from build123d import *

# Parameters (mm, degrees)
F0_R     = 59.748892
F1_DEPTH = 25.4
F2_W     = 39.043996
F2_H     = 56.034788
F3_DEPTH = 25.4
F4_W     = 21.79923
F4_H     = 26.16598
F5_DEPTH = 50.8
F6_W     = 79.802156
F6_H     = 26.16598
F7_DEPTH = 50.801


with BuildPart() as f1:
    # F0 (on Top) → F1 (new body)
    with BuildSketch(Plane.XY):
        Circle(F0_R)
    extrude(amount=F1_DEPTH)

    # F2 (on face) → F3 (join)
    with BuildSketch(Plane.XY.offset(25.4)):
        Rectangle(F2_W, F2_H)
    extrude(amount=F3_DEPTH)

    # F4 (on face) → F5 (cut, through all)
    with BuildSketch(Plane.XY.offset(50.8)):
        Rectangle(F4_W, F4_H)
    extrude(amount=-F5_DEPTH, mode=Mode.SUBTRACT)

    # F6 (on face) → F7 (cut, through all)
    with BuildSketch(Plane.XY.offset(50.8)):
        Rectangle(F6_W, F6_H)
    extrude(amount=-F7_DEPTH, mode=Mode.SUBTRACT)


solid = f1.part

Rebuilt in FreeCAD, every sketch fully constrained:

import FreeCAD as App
import Part
import Sketcher

V = App.Vector
Q = App.Units.Quantity

doc = App.newDocument("Part")
body = doc.addObject("PartDesign::Body", "Body")

# Sketch on XY plane
sketch1 = body.newObject("Sketcher::SketchObject", "Sketch")
sketch1.AttachmentSupport = (doc.getObject("XY_Plane"), [""])
sketch1.MapMode = "FlatFace"
sketch1.addGeometry(Part.Circle(V(0, 0, 0), V(0, 0, 1), 60), False)
sketch1.addConstraint([
    Sketcher.Constraint("Coincident", 0, 3, -1, 1),
    Sketcher.Constraint("Diameter", 0, Q("119.497784 mm")),
])
pad1 = body.newObject("PartDesign::Pad", "Pad")
pad1.Profile = sketch1
pad1.Length = Q("1 in")

# Sketch on XY plane
sketch2 = body.newObject("Sketcher::SketchObject", "Sketch001")
sketch2.AttachmentSupport = (doc.getObject("XY_Plane"), [""])
sketch2.MapMode = "FlatFace"
sketch2.AttachmentOffset = App.Placement(V(0, 0, 1 * 25.4), App.Rotation())
sketch2.addGeometry([
    Part.LineSegment(V(-20, 28, 0), V(-20, -28, 0)),
    Part.LineSegment(V(-20, -28, 0), V(20, -28, 0)),
    Part.LineSegment(V(20, -28, 0), V(20, 28, 0)),
    Part.LineSegment(V(20, 28, 0), V(-20, 28, 0)),
], False)
sketch2.addConstraint([
    Sketcher.Constraint("Coincident", 0, 2, 1, 1),
    Sketcher.Constraint("Coincident", 1, 2, 2, 1),
    Sketcher.Constraint("Coincident", 2, 2, 3, 1),
    Sketcher.Constraint("Coincident", 3, 2, 0, 1),
    Sketcher.Constraint("Vertical", 0),
    Sketcher.Constraint("Horizontal", 1),
    Sketcher.Constraint("Vertical", 2),
    Sketcher.Constraint("Horizontal", 3),
    Sketcher.Constraint("Symmetric", 0, 2, 2, 2, -1, 1),
    Sketcher.Constraint("DistanceX", 0, 2, -1, 1, Q("19.521998 mm")),
    Sketcher.Constraint("DistanceY", 0, 2, 0, 1, Q("56.034788 mm")),
])
pad2 = body.newObject("PartDesign::Pad", "Pad001")
pad2.Profile = sketch2
pad2.Length = Q("1 in")

# Sketch on XY plane
sketch3 = body.newObject("Sketcher::SketchObject", "Sketch002")
sketch3.AttachmentSupport = (doc.getObject("XY_Plane"), [""])
sketch3.MapMode = "FlatFace"
sketch3.AttachmentOffset = App.Placement(V(0, 0, 2 * 25.4), App.Rotation())
sketch3.addGeometry([
    Part.LineSegment(V(-11, 13, 0), V(-11, -13, 0)),
    Part.LineSegment(V(-11, -13, 0), V(11, -13, 0)),
    Part.LineSegment(V(11, -13, 0), V(11, 13, 0)),
    Part.LineSegment(V(11, 13, 0), V(-11, 13, 0)),
], False)
sketch3.addConstraint([
    Sketcher.Constraint("Coincident", 0, 2, 1, 1),
    Sketcher.Constraint("Coincident", 1, 2, 2, 1),
    Sketcher.Constraint("Coincident", 2, 2, 3, 1),
    Sketcher.Constraint("Coincident", 3, 2, 0, 1),
    Sketcher.Constraint("Vertical", 0),
    Sketcher.Constraint("Horizontal", 1),
    Sketcher.Constraint("Vertical", 2),
    Sketcher.Constraint("Horizontal", 3),
    Sketcher.Constraint("Symmetric", 0, 2, 2, 2, -1, 1),
    Sketcher.Constraint("DistanceX", 1, 1, 1, 2, Q("21.79923 mm")),
    Sketcher.Constraint("DistanceY", 0, 2, 0, 1, Q("26.16598 mm")),
])
pocket1 = body.newObject("PartDesign::Pocket", "Pocket")
pocket1.Profile = sketch3
pocket1.Type = "ThroughAll"

# Sketch on XY plane
sketch4 = body.newObject("Sketcher::SketchObject", "Sketch003")
sketch4.AttachmentSupport = (doc.getObject("XY_Plane"), [""])
sketch4.MapMode = "FlatFace"
sketch4.AttachmentOffset = App.Placement(V(0, 0, 2 * 25.4), App.Rotation())
sketch4.addGeometry([
    Part.LineSegment(V(-40, 13, 0), V(-40, -13, 0)),
    Part.LineSegment(V(-40, -13, 0), V(40, -13, 0)),
    Part.LineSegment(V(40, -13, 0), V(40, 13, 0)),
    Part.LineSegment(V(40, 13, 0), V(-40, 13, 0)),
], False)
sketch4.addConstraint([
    Sketcher.Constraint("Coincident", 0, 2, 1, 1),
    Sketcher.Constraint("Coincident", 1, 2, 2, 1),
    Sketcher.Constraint("Coincident", 2, 2, 3, 1),
    Sketcher.Constraint("Coincident", 3, 2, 0, 1),
    Sketcher.Constraint("Vertical", 0),
    Sketcher.Constraint("Horizontal", 1),
    Sketcher.Constraint("Vertical", 2),
    Sketcher.Constraint("Horizontal", 3),
    Sketcher.Constraint("Symmetric", 0, 2, 2, 2, -1, 1),
    Sketcher.Constraint("DistanceY", 0, 2, 0, 1, Q("26.16598 mm")),
    Sketcher.Constraint("DistanceX", 1, 1, 1, 2, Q("79.802156 mm")),
])
pocket2 = body.newObject("PartDesign::Pocket", "Pocket001")
pocket2.Profile = sketch4
pocket2.Type = "ThroughAll"

doc.recompute()
